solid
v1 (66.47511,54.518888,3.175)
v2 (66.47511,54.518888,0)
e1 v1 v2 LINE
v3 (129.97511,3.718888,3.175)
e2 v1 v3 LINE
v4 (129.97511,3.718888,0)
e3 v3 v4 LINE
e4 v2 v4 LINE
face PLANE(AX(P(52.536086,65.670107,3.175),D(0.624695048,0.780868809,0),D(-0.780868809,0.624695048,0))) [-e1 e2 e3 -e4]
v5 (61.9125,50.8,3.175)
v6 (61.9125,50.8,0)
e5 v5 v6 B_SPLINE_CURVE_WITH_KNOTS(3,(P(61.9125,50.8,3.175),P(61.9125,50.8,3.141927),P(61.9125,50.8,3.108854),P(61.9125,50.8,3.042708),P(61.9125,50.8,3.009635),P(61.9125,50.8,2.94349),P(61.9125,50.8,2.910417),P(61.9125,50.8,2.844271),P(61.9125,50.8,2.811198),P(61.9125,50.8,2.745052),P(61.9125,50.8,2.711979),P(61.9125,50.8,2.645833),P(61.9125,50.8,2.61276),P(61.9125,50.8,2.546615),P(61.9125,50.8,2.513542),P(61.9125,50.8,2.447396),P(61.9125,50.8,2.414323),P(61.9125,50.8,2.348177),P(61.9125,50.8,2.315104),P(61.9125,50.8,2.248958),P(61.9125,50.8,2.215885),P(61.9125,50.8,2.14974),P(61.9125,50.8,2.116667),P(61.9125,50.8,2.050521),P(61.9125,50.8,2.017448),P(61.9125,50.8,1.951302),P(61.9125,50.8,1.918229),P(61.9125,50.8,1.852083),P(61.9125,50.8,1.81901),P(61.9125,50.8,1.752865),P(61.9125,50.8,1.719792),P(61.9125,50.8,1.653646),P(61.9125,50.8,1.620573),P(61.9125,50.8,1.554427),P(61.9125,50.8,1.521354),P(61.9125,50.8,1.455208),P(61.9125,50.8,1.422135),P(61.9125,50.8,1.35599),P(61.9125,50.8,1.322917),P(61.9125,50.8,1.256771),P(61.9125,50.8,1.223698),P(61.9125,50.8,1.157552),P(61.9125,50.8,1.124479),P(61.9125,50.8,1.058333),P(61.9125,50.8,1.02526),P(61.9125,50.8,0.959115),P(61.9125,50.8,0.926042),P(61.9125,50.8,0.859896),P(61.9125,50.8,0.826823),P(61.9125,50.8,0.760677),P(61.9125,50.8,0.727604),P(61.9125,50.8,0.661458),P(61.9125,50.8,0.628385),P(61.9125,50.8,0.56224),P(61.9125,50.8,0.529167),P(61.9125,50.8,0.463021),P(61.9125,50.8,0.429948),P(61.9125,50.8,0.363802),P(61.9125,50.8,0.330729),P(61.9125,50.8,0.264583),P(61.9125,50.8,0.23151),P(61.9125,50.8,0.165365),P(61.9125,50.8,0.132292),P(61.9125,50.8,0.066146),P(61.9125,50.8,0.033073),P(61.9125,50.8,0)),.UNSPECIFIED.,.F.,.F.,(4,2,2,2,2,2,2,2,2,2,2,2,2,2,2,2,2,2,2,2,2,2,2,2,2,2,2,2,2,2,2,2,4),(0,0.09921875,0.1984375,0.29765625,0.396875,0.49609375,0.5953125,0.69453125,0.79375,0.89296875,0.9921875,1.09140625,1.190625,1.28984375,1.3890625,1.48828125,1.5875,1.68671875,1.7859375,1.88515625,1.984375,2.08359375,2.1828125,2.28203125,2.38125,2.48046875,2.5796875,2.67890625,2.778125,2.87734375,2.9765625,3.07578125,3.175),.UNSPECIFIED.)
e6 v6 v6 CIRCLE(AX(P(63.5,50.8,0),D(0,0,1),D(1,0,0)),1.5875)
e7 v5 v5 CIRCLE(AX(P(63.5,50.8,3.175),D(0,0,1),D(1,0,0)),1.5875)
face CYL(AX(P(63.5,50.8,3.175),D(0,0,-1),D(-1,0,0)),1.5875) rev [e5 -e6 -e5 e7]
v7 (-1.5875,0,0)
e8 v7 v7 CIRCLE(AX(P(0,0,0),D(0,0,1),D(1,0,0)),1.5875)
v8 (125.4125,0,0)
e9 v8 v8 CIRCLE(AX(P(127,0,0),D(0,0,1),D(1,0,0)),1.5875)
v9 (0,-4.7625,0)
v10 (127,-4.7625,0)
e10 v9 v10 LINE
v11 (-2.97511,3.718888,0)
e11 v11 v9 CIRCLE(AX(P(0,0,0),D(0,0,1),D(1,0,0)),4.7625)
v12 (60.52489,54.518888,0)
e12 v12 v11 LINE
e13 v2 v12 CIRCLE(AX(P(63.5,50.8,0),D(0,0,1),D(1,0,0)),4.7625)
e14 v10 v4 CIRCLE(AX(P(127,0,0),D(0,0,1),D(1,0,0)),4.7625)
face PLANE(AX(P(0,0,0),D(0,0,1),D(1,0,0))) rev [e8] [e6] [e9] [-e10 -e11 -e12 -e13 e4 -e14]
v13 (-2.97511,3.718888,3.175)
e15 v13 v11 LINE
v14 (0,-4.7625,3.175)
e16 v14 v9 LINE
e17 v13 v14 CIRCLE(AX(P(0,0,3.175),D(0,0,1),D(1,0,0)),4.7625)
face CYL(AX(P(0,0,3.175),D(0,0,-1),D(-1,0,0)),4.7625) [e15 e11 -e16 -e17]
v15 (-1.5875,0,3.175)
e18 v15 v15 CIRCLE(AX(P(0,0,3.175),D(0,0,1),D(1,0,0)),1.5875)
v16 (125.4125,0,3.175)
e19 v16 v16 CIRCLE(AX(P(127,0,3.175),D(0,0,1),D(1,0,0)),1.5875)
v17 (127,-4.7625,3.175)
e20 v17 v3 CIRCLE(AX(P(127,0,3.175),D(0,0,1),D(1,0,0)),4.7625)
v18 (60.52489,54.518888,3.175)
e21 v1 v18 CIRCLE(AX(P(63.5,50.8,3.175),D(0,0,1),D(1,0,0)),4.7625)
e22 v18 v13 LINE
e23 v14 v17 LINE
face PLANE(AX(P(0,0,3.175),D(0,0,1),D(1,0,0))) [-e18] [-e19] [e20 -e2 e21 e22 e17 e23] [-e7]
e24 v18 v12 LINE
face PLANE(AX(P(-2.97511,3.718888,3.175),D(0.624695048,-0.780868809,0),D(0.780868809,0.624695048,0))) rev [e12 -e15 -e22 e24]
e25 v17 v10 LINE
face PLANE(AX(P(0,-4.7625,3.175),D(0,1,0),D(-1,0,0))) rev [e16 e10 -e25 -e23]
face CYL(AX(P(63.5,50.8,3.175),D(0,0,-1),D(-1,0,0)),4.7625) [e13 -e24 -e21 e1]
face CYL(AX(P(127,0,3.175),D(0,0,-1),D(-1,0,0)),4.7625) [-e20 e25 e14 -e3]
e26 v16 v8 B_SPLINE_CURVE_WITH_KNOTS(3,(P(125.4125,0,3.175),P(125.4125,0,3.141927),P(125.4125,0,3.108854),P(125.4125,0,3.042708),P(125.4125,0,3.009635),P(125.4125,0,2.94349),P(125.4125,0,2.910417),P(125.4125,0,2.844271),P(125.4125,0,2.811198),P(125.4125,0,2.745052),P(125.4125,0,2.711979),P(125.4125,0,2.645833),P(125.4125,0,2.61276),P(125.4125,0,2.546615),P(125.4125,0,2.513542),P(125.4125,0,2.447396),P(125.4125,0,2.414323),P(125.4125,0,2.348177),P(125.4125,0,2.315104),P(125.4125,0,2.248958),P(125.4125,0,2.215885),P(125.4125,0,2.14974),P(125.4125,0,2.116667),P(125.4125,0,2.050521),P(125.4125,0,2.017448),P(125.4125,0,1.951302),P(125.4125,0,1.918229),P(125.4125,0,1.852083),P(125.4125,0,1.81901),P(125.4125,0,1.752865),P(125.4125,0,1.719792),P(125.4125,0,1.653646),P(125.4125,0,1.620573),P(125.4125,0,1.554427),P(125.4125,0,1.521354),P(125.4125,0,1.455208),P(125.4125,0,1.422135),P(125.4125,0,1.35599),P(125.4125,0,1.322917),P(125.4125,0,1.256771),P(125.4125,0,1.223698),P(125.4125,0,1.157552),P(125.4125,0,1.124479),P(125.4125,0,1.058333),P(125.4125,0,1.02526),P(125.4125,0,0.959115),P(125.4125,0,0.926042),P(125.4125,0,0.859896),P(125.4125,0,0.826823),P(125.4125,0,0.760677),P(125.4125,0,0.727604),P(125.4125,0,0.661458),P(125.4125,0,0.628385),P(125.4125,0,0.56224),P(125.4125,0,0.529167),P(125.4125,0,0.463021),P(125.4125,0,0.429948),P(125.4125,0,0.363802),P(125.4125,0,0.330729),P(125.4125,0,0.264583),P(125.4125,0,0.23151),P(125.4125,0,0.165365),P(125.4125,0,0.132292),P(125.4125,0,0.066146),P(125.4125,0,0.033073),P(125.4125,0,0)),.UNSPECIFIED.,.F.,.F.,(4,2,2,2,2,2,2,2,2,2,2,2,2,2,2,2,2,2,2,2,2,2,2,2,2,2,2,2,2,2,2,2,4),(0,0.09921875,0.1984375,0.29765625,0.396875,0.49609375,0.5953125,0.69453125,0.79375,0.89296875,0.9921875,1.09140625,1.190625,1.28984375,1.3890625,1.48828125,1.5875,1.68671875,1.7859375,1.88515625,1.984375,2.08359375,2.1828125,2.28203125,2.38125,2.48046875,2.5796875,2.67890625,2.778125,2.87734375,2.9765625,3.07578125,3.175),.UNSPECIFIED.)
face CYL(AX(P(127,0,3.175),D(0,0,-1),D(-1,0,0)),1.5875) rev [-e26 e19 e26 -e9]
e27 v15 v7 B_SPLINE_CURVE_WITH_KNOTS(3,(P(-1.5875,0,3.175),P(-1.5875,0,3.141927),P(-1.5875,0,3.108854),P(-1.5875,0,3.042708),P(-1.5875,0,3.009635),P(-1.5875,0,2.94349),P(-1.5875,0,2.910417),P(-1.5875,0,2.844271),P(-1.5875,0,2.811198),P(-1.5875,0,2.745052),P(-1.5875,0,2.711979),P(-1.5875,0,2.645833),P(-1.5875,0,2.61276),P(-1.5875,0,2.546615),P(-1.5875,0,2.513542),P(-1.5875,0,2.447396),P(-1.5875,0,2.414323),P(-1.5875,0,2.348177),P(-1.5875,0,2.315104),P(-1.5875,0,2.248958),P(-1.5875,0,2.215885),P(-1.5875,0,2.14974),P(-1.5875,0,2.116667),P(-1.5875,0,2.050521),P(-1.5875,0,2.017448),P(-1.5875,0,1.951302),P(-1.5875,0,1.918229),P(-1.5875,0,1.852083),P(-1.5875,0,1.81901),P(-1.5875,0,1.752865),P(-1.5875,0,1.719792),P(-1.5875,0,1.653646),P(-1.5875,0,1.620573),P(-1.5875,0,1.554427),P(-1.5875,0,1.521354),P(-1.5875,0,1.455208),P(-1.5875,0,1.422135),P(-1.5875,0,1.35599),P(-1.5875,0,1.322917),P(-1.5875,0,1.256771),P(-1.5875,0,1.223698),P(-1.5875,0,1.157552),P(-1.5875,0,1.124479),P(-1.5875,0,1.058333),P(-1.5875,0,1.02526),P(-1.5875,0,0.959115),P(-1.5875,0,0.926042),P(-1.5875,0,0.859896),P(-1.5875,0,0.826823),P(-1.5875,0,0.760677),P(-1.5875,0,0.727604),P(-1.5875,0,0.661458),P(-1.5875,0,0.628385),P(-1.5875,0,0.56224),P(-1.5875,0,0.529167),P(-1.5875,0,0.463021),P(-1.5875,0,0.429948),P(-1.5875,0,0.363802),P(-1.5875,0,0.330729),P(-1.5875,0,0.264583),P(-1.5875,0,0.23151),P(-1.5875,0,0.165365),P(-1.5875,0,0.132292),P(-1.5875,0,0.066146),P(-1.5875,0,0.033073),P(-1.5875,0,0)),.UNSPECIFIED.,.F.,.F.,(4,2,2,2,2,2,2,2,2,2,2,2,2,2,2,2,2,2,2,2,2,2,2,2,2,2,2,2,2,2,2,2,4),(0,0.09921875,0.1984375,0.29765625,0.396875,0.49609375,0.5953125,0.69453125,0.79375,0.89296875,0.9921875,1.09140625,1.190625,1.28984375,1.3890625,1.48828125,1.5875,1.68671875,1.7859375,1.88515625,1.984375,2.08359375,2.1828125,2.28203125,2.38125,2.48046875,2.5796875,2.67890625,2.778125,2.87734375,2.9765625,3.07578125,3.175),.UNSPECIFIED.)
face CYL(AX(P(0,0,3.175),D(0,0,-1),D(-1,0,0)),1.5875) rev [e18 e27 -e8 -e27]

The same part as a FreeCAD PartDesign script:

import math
import FreeCAD as App
import Part
import Sketcher

V = App.Vector
Q = App.Units.Quantity

doc = App.newDocument("Part")
body = doc.addObject("PartDesign::Body", "Body")

# Sketch on XY plane
sketch1 = body.newObject("Sketcher::SketchObject", "Sketch")
sketch1.AttachmentSupport = (doc.getObject("XY_Plane"), [""])
sketch1.MapMode = "FlatFace"
sketch1.addGeometry([
    Part.LineSegment(V(60.5, 54.5, 0), V(-3, 3.7, 0)),  # 0
    Part.ArcOfCircle(Part.Circle(V(0, 0, 0), V(0, 0, 1), 4.8), math.radians(129), math.radians(270)),  # 1
    Part.LineSegment(V(0, -4.8, 0), V(127, -4.8, 0)),  # 2
    Part.ArcOfCircle(Part.Circle(V(127, 0, 0), V(0, 0, 1), 4.8), math.radians(-90), math.radians(51)),  # 3
    Part.LineSegment(V(130, 3.7, 0), V(66.5, 54.5, 0)),  # 4
    Part.ArcOfCircle(Part.Circle(V(63.5, 50.8, 0), V(0, 0, 1), 4.8), math.radians(51), math.radians(129)),  # 5
    Part.Circle(V(63.5, 50.8, 0), V(0, 0, 1), 1.6),  # 6
    Part.Circle(V(0, 0, 0), V(0, 0, 1), 1.6),  # 7
    Part.Circle(V(127, 0, 0), V(0, 0, 1), 1.6),  # 8
], False)
sketch1.addConstraint([
    Sketcher.Constraint("Tangent", 0, 2, 1, 1),
    Sketcher.Constraint("Tangent", 1, 2, 2, 1),
    Sketcher.Constraint("Tangent", 2, 2, 3, 1),
    Sketcher.Constraint("Tangent", 3, 2, 4, 1),
    Sketcher.Constraint("Tangent", 4, 2, 5, 1),
    Sketcher.Constraint("Tangent", 5, 2, 0, 1),
    Sketcher.Constraint("Horizontal", 2),
    Sketcher.Constraint("Coincident", 1, 3, -1, 1),
    Sketcher.Constraint("Coincident", 7, 3, -1, 1),
    Sketcher.Constraint("Coincident", 6, 3, 5, 3),
    Sketcher.Constraint("Coincident", 8, 3, 3, 3),
    Sketcher.Constraint("Equal", 1, 3),
    Sketcher.Constraint("Equal", 3, 5),
    Sketcher.Constraint("Equal", 6, 7),
    Sketcher.Constraint("Equal", 7, 8),
    Sketcher.Constraint("Horizontal", 0, 2, 3, 2),
    Sketcher.Constraint("DistanceX", 2, 1, 2, 2, Q("5 in")),
    Sketcher.Constraint("Diameter", 6, Q("0.125 in")),
    Sketcher.Constraint("DistanceY", -1, 1, 5, 3, Q("2 in")),
    Sketcher.Constraint("Radius", 1, Q("0.1875 in")),
])
pad1 = body.newObject("PartDesign::Pad", "Pad")
pad1.Profile = sketch1
pad1.Length = Q("0.125 in")

doc.recompute()
